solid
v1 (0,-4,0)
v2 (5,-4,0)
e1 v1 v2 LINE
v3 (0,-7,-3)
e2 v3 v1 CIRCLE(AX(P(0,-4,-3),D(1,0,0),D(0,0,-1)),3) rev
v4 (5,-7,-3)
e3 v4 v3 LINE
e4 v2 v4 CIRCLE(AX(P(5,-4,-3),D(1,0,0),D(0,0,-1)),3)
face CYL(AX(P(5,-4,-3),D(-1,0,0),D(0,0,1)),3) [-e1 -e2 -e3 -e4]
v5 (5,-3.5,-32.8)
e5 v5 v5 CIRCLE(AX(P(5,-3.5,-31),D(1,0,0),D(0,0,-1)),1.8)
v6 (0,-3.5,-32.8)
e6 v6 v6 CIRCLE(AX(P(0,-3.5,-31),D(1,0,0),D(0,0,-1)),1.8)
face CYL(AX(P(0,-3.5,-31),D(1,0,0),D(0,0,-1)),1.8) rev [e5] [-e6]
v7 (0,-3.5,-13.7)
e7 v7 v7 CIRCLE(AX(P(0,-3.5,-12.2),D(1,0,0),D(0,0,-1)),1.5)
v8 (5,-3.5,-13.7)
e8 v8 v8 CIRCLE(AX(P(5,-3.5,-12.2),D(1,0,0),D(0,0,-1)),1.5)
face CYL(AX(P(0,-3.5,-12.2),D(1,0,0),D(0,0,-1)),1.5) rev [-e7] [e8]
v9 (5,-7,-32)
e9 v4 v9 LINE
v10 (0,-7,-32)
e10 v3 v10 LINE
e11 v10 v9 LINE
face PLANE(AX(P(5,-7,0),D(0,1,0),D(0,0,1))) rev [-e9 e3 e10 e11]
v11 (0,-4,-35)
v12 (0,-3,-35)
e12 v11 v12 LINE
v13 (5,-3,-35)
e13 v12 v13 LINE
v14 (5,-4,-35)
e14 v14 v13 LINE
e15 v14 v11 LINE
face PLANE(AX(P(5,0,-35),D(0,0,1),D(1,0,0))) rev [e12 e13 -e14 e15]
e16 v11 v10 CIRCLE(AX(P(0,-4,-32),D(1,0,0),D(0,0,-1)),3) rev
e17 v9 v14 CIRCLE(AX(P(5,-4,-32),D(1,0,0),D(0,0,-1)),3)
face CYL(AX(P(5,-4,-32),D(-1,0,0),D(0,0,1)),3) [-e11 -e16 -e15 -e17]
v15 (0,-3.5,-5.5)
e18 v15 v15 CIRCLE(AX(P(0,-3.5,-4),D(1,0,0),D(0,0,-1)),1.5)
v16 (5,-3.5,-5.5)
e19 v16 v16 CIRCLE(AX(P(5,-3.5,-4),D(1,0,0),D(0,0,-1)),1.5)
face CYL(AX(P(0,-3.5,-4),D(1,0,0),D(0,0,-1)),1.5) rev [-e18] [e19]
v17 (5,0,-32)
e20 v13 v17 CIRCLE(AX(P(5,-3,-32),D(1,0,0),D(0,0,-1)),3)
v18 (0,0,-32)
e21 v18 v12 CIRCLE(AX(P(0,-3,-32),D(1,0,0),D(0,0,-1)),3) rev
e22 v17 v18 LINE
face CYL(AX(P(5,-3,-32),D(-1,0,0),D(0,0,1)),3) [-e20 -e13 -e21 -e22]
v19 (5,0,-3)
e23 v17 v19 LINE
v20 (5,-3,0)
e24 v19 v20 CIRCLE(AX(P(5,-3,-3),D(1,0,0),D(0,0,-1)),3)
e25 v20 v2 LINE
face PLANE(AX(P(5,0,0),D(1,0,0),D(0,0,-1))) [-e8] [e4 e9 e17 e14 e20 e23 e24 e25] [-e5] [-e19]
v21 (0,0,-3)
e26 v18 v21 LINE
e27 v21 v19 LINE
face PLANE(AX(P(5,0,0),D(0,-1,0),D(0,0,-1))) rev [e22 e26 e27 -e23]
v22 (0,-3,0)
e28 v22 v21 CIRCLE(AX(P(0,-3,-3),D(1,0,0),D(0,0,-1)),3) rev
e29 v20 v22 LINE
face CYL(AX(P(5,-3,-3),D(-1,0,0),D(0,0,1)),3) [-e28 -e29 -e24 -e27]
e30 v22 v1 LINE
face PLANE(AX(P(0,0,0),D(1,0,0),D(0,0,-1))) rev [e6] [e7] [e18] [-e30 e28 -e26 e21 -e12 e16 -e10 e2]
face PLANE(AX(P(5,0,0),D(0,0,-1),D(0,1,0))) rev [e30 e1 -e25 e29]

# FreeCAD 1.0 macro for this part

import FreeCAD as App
import Part
import Sketcher
from FreeCAD import Vector
Q = App.Units.Quantity


def edges_at(feature, points):
    """Names of the edges that pass closest to the given points."""
    edges = feature.Shape.Edges
    near = lambda p: min(range(len(edges)), key=lambda i: edges[i].distToShape(Part.Vertex(*p))[0])
    return sorted({f"Edge{near(p) + 1}" for p in points})

doc = App.newDocument("Part")
params = doc.addObject("Spreadsheet::Sheet", "Params")
for row, (alias, value) in enumerate([
    ("sketch1_width", "7 mm"),
    ("sketch1_height", "35 mm"),
    ("pad1_length", "5 mm"),
    ("sketch2_diameter", "3 mm"),
    ("sketch2_diameter2", "3.6 mm"),
    ("fillet_radius", "3 mm"),
], start=1):
    params.set(f"A{row}", alias)
    params.set(f"B{row}", "=" + value)
    params.setAlias(f"B{row}", alias)

body = doc.addObject("PartDesign::Body", "Body")

sketch1 = doc.addObject("Sketcher::SketchObject", "Sketch")
body.addObject(sketch1)
sketch1.AttachmentSupport = (doc.YZ_Plane, [""])
sketch1.MapMode = "FlatFace"
sketch1.addGeometry([
    Part.LineSegment(Vector(0, 0, 0), Vector(-7, 0, 0)),
    Part.LineSegment(Vector(-7, 0, 0), Vector(-7, -35, 0)),
    Part.LineSegment(Vector(-7, -35, 0), Vector(0, -35, 0)),
    Part.LineSegment(Vector(0, -35, 0), Vector(0, 0, 0)),
], False)
sketch1.addConstraint([
    Sketcher.Constraint("Coincident", 0, 2, 1, 1),
    Sketcher.Constraint("Coincident", 1, 2, 2, 1),
    Sketcher.Constraint("Coincident", 2, 2, 3, 1),
    Sketcher.Constraint("Coincident", 3, 2, 0, 1),
    Sketcher.Constraint("Horizontal", 0),
    Sketcher.Constraint("Vertical", 1),
    Sketcher.Constraint("Horizontal", 2),
    Sketcher.Constraint("Vertical", 3),
    Sketcher.Constraint("Coincident", 3, 2, -1, 1),
    Sketcher.Constraint("DistanceX", 0, 2, 0, 1, Q("7 mm")),
    Sketcher.Constraint("DistanceY", 1, 2, 1, 1, Q("35 mm")),
])
sketch1.setExpression("Constraints[9]", "Params.sketch1_width")
sketch1.setExpression("Constraints[10]", "Params.sketch1_height")
pad1 = doc.addObject("PartDesign::Pad", "Pad")
body.addObject(pad1)
pad1.Profile = sketch1
pad1.setExpression("Length", "Params.pad1_length")

sketch2 = doc.addObject("Sketcher::SketchObject", "Sketch001")
body.addObject(sketch2)
sketch2.AttachmentSupport = (doc.YZ_Plane, [""])
sketch2.MapMode = "FlatFace"
sketch2.AttachmentOffset = App.Placement(Vector(0, 0, 5), App.Rotation())
sketch2.addGeometry([
    Part.Circle(Vector(-3.5, -4, 0), Vector(0, 0, 1), 1.5),
    Part.Circle(Vector(-3.5, -12.2, 0), Vector(0, 0, 1), 1.5),
    Part.Circle(Vector(-3.5, -31, 0), Vector(0, 0, 1), 1.8),
], False)
sketch2.addConstraint([
    Sketcher.Constraint("Equal", 0, 1),
    Sketcher.Constraint("Vertical", 0, 3, 1, 3),
    Sketcher.Constraint("Vertical", 1, 3, 2, 3),
    Sketcher.Constraint("Diameter", 0, Q("3 mm")),
    Sketcher.Constraint("Diameter", 2, Q("3.6 mm")),
    Sketcher.Constraint("DistanceY", 0, 3, -1, 1, Q("4 mm")),
    Sketcher.Constraint("DistanceY", 2, 3, -1, 1, Q("31 mm")),
    Sketcher.Constraint("DistanceX", 0, 3, -1, 1, Q("3.5 mm")),
    Sketcher.Constraint("DistanceY", 1, 3, -1, 1, Q("12.2 mm")),
])
sketch2.setExpression("Constraints[3]", "Params.sketch2_diameter")
sketch2.setExpression("Constraints[4]", "Params.sketch2_diameter2")
pocket1 = doc.addObject("PartDesign::Pocket", "Pocket")
body.addObject(pocket1)
pocket1.Profile = sketch2
pocket1.Type = "ThroughAll"
doc.recompute()

fillet = doc.addObject("PartDesign::Fillet", "Fillet")
body.addObject(fillet)
fillet.Base = (pocket1, edges_at(pocket1, [
    (2.5, 0, 0),
    (2.5, 0, -35),
    (2.5, -7, -35),
    (2.5, -7, 0),
]))
fillet.setExpression("Radius", "Params.fillet_radius")

doc.recompute()
